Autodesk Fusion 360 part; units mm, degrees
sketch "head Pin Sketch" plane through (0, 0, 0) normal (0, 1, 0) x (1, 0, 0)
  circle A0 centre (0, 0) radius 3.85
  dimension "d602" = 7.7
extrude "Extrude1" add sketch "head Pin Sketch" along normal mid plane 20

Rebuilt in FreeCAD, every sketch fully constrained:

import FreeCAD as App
import Part
import Sketcher
from FreeCAD import Vector

doc = App.newDocument("Part")
body = doc.addObject("PartDesign::Body", "Body")

# Sketch on XZ plane
sketch1 = doc.addObject("Sketcher::SketchObject", "Sketch")
body.addObject(sketch1)
sketch1.AttachmentSupport = (doc.XZ_Plane, [""])
sketch1.MapMode = "FlatFace"
sketch1.addGeometry(Part.Circle(Vector(0, 0, 0), Vector(0, 0, 1), 3.9), False)
sketch1.addConstraint([
    Sketcher.Constraint("Coincident", 0, 3, -1, 1),
    Sketcher.Constraint("Diameter", 0, 7.7),
])
pad1 = doc.addObject("PartDesign::Pad", "Pad")
body.addObject(pad1)
pad1.Profile = sketch1
pad1.Length = 20
pad1.Midplane = True

doc.recompute()
